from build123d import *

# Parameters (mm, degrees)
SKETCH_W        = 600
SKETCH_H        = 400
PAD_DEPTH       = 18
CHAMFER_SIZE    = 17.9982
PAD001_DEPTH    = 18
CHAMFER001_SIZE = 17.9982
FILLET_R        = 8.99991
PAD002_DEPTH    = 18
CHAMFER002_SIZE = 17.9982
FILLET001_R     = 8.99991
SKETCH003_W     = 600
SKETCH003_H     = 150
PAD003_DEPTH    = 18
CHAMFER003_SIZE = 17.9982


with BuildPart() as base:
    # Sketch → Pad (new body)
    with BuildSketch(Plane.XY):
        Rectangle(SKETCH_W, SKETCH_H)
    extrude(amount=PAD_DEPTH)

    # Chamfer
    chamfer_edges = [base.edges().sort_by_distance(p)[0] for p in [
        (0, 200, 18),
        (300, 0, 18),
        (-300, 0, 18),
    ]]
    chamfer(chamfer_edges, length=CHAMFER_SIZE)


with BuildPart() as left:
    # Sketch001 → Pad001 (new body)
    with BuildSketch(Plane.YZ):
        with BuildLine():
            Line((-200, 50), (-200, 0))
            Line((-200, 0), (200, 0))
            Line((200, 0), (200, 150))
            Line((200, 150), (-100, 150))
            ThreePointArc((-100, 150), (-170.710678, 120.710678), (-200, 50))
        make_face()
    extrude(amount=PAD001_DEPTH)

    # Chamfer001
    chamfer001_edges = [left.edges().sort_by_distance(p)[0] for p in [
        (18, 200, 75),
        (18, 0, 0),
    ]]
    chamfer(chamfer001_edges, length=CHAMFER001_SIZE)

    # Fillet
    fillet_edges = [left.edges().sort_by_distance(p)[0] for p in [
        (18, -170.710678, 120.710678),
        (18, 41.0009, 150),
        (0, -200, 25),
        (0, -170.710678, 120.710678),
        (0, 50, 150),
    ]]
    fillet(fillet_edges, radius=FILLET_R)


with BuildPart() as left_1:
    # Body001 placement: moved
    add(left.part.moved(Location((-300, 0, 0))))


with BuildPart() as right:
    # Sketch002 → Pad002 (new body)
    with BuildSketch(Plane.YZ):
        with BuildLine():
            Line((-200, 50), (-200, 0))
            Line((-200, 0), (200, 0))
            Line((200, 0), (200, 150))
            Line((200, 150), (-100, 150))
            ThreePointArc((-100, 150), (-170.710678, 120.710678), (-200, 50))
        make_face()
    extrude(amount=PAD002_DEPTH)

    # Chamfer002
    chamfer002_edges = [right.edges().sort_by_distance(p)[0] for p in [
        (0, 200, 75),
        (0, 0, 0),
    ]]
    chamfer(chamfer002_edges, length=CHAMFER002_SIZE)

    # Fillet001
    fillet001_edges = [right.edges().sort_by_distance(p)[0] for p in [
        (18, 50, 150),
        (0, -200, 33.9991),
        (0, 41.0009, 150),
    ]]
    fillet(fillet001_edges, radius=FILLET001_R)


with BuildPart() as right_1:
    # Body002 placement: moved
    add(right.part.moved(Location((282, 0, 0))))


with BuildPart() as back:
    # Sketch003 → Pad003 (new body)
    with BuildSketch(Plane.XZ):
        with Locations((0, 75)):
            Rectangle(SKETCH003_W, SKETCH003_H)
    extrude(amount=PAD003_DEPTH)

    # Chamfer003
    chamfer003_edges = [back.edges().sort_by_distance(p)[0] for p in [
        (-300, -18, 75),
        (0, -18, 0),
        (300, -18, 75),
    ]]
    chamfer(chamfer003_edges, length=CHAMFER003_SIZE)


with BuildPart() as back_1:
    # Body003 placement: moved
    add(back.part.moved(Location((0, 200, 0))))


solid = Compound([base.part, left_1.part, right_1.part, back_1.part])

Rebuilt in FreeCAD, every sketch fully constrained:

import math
import FreeCAD as App
import Part
import Sketcher


def edges_at(feature, points):
    """Names of the edges that pass closest to the given points."""
    edges = feature.Shape.Edges
    near = lambda p: min(range(len(edges)), key=lambda i: edges[i].distToShape(Part.Vertex(*p))[0])
    return sorted({f"Edge{near(p) + 1}" for p in points})


def add_polygon(sketch, points):
    """Adds a closed chain of lines whose ends are joined by coincident constraints."""
    first, n = sketch.GeometryCount, len(points)
    for a, b in zip(points, points[1:] + points[:1]):
        sketch.addGeometry(Part.LineSegment(App.Vector(*a, 0), App.Vector(*b, 0)), False)
    for i in range(n):
        sketch.addConstraint(Sketcher.Constraint("Coincident", first + i, 2, first + (i + 1) % n, 1))

doc = App.newDocument("Part")
body = doc.addObject("PartDesign::Body", "Body")

# Sketch on XY plane
sketch1 = body.newObject("Sketcher::SketchObject", "Sketch")
sketch1.AttachmentSupport = (doc.getObject("XY_Plane"), [""])
sketch1.MapMode = "FlatFace"
add_polygon(sketch1, [(-300, 200), (-300, -200), (300, -200), (300, 200)])  # lines 0-3
sketch1.addConstraint(Sketcher.Constraint("Vertical", 0))
sketch1.addConstraint(Sketcher.Constraint("Horizontal", 1))
sketch1.addConstraint(Sketcher.Constraint("Vertical", 2))
sketch1.addConstraint(Sketcher.Constraint("Horizontal", 3))
sketch1.addConstraint(Sketcher.Constraint("Symmetric", 0, 2, 2, 2, -1, 1))
sketch1.addConstraint(Sketcher.Constraint("DistanceX", 1, 1, 1, 2, 600.0))
sketch1.addConstraint(Sketcher.Constraint("DistanceY", 0, 2, 0, 1, 400.0))
pad1 = body.newObject("PartDesign::Pad", "Pad")
pad1.Profile = sketch1
pad1.Length = 18
doc.recompute()

chamfer = body.newObject("PartDesign::Chamfer", "Chamfer")
chamfer.Base = (pad1, edges_at(pad1, [(0, 200, 18), (300, 0, 18), (-300, 0, 18)]))
chamfer.Size = 17.9982
body2 = doc.addObject("PartDesign::Body", "Body001")

# Sketch on YZ plane
sketch2 = body2.newObject("Sketcher::SketchObject", "Sketch001")
sketch2.AttachmentSupport = (doc.getObject("YZ_Plane001"), [""])
sketch2.MapMode = "FlatFace"
sketch2.addGeometry(Part.LineSegment(App.Vector(-200, 50, 0), App.Vector(-200, 0, 0)), False)
sketch2.addGeometry(Part.LineSegment(App.Vector(-200, 0, 0), App.Vector(200, 0, 0)), False)
sketch2.addGeometry(Part.LineSegment(App.Vector(200, 0, 0), App.Vector(200, 150, 0)), False)
sketch2.addGeometry(Part.LineSegment(App.Vector(200, 150, 0), App.Vector(-100, 150, 0)), False)
sketch2.addGeometry(Part.ArcOfCircle(Part.Circle(App.Vector(-100, 50, 0), App.Vector(0, 0, 1), 100), math.radians(90), math.radians(180)), False)
sketch2.addConstraint(Sketcher.Constraint("Coincident", 0, 2, 1, 1))
sketch2.addConstraint(Sketcher.Constraint("Coincident", 1, 2, 2, 1))
sketch2.addConstraint(Sketcher.Constraint("Coincident", 2, 2, 3, 1))
sketch2.addConstraint(Sketcher.Constraint("Tangent", 3, 2, 4, 1))
sketch2.addConstraint(Sketcher.Constraint("Tangent", 4, 2, 0, 1))
sketch2.addConstraint(Sketcher.Constraint("Vertical", 0))
sketch2.addConstraint(Sketcher.Constraint("Horizontal", 1))
sketch2.addConstraint(Sketcher.Constraint("Vertical", 2))
sketch2.addConstraint(Sketcher.Constraint("Horizontal", 3))
sketch2.addConstraint(Sketcher.Constraint("Symmetric", 0, 2, 1, 2, -1, 1))
sketch2.addConstraint(Sketcher.Constraint("Radius", 4, 100.0))
sketch2.addConstraint(Sketcher.Constraint("DistanceX", 1, 1, 1, 2, 400.0))
sketch2.addConstraint(Sketcher.Constraint("DistanceY", 0, 2, 0, 1, 50.0))
pad2 = body2.newObject("PartDesign::Pad", "Pad001")
pad2.Profile = sketch2
pad2.Length = 18
doc.recompute()

chamfer2 = body2.newObject("PartDesign::Chamfer", "Chamfer001")
chamfer2.Base = (pad2, edges_at(pad2, [(18, 200, 75), (18, 0, 0)]))
chamfer2.Size = 17.9982
doc.recompute()

fillet = body2.newObject("PartDesign::Fillet", "Fillet")
fillet.Base = (chamfer2, edges_at(chamfer2, [
    (18, -170.711, 120.711),
    (18, 41.001, 150),
    (0, -200, 25),
    (0, -170.711, 120.711),
    (0, 50, 150),
]))
fillet.Radius = 8.99991
body3 = doc.addObject("PartDesign::Body", "Body002")
doc.recompute()

body2.Placement = App.Placement(App.Vector(-300, 0, 0), App.Rotation(App.Vector(0, 0, 1), 0))
boolean = body3.newObject("PartDesign::Boolean", "Boolean")
boolean.Type = "Fuse"
boolean.addObjects([body2])
body4 = doc.addObject("PartDesign::Body", "Body003")

# Sketch on YZ plane
sketch3 = body4.newObject("Sketcher::SketchObject", "Sketch002")
sketch3.AttachmentSupport = (doc.getObject("YZ_Plane003"), [""])
sketch3.MapMode = "FlatFace"
sketch3.addGeometry(Part.LineSegment(App.Vector(-200, 50, 0), App.Vector(-200, 0, 0)), False)
sketch3.addGeometry(Part.LineSegment(App.Vector(-200, 0, 0), App.Vector(200, 0, 0)), False)
sketch3.addGeometry(Part.LineSegment(App.Vector(200, 0, 0), App.Vector(200, 150, 0)), False)
sketch3.addGeometry(Part.LineSegment(App.Vector(200, 150, 0), App.Vector(-100, 150, 0)), False)
sketch3.addGeometry(Part.ArcOfCircle(Part.Circle(App.Vector(-100, 50, 0), App.Vector(0, 0, 1), 100), math.radians(90), math.radians(180)), False)
sketch3.addConstraint(Sketcher.Constraint("Coincident", 0, 2, 1, 1))
sketch3.addConstraint(Sketcher.Constraint("Coincident", 1, 2, 2, 1))
sketch3.addConstraint(Sketcher.Constraint("Coincident", 2, 2, 3, 1))
sketch3.addConstraint(Sketcher.Constraint("Tangent", 3, 2, 4, 1))
sketch3.addConstraint(Sketcher.Constraint("Tangent", 4, 2, 0, 1))
sketch3.addConstraint(Sketcher.Constraint("Vertical", 0))
sketch3.addConstraint(Sketcher.Constraint("Horizontal", 1))
sketch3.addConstraint(Sketcher.Constraint("Vertical", 2))
sketch3.addConstraint(Sketcher.Constraint("Horizontal", 3))
sketch3.addConstraint(Sketcher.Constraint("Symmetric", 0, 2, 1, 2, -1, 1))
sketch3.addConstraint(Sketcher.Constraint("Radius", 4, 100.0))
sketch3.addConstraint(Sketcher.Constraint("DistanceX", 1, 1, 1, 2, 400.0))
sketch3.addConstraint(Sketcher.Constraint("DistanceY", 0, 2, 0, 1, 50.0))
pad3 = body4.newObject("PartDesign::Pad", "Pad002")
pad3.Profile = sketch3
pad3.Length = 18
doc.recompute()

chamfer3 = body4.newObject("PartDesign::Chamfer", "Chamfer002")
chamfer3.Base = (pad3, edges_at(pad3, [(0, 200, 75), (0, 0, 0)]))
chamfer3.Size = 17.9982
doc.recompute()

fillet2 = body4.newObject("PartDesign::Fillet", "Fillet001")
fillet2.Base = (chamfer3, edges_at(chamfer3, [(18, 50, 150), (0, -200, 33.999), (0, 41.001, 150)]))
fillet2.Radius = 8.99991
body5 = doc.addObject("PartDesign::Body", "Body004")
doc.recompute()

body4.Placement = App.Placement(App.Vector(282, 0, 0), App.Rotation(App.Vector(0, 0, 1), 0))
boolean2 = body5.newObject("PartDesign::Boolean", "Boolean001")
boolean2.Type = "Fuse"
boolean2.addObjects([body4])
body6 = doc.addObject("PartDesign::Body", "Body005")

# Sketch on XZ plane
sketch4 = body6.newObject("Sketcher::SketchObject", "Sketch003")
sketch4.AttachmentSupport = (doc.getObject("XZ_Plane005"), [""])
sketch4.MapMode = "FlatFace"
add_polygon(sketch4, [(-300, 150), (-300, 0), (300, 0), (300, 150)])  # lines 0-3
sketch4.addConstraint(Sketcher.Constraint("Vertical", 0))
sketch4.addConstraint(Sketcher.Constraint("Horizontal", 1))
sketch4.addConstraint(Sketcher.Constraint("Vertical", 2))
sketch4.addConstraint(Sketcher.Constraint("Horizontal", 3))
sketch4.addConstraint(Sketcher.Constraint("Symmetric", 0, 2, 1, 2, -1, 1))
sketch4.addConstraint(Sketcher.Constraint("DistanceX", 1, 1, 1, 2, 600.0))
sketch4.addConstraint(Sketcher.Constraint("DistanceY", 0, 2, 0, 1, 150.0))
pad4 = body6.newObject("PartDesign::Pad", "Pad003")
pad4.Profile = sketch4
pad4.Length = 18
doc.recompute()

chamfer4 = body6.newObject("PartDesign::Chamfer", "Chamfer003")
chamfer4.Base = (pad4, edges_at(pad4, [(-300, -18, 75), (0, -18, 0), (300, -18, 75)]))
chamfer4.Size = 17.9982
body7 = doc.addObject("PartDesign::Body", "Body006")
doc.recompute()

body6.Placement = App.Placement(App.Vector(0, 200, 0), App.Rotation(App.Vector(0, 0, 1), 0))
boolean3 = body7.newObject("PartDesign::Boolean", "Boolean002")
boolean3.Type = "Fuse"
boolean3.addObjects([body6])

doc.recompute()
